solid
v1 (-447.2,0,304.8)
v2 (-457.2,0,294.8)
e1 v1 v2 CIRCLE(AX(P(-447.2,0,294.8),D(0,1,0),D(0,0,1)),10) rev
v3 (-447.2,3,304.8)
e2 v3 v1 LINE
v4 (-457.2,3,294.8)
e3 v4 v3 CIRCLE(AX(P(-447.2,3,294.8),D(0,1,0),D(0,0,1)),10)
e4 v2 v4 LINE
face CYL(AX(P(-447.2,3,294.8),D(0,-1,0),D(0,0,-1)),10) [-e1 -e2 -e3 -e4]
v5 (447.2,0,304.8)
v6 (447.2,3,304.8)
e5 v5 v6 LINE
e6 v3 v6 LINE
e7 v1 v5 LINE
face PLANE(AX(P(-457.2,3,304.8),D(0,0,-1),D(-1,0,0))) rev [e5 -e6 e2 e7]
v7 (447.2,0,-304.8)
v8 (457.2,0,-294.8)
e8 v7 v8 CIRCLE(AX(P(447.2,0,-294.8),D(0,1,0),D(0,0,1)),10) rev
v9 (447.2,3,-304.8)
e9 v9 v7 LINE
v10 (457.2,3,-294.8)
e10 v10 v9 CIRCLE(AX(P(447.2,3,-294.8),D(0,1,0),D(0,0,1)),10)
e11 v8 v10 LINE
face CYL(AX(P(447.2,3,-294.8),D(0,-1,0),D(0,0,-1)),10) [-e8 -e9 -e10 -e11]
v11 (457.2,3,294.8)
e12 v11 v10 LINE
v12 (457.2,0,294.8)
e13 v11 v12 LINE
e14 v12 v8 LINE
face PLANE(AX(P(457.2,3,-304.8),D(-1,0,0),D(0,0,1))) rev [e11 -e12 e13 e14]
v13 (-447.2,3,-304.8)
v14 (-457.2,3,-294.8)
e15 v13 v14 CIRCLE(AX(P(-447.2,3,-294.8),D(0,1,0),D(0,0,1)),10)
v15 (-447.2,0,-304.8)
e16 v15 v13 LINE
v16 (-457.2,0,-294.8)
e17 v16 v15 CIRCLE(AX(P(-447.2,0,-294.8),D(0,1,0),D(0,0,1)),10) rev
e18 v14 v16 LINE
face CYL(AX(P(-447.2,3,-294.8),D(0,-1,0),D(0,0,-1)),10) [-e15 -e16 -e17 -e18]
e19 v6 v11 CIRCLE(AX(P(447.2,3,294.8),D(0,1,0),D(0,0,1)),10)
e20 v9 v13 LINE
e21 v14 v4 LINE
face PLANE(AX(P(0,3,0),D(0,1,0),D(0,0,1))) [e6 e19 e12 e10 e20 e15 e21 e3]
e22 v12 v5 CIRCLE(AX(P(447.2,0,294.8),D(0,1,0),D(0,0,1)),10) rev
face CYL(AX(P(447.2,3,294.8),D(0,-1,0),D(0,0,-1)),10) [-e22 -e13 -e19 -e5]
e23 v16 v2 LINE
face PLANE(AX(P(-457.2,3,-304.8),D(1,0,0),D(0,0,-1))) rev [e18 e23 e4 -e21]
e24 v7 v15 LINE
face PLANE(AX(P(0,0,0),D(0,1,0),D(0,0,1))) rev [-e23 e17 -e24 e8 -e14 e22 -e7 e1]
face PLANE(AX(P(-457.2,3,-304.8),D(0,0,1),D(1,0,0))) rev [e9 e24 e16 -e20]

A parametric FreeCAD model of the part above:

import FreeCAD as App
import Part
import Sketcher
from FreeCAD import Vector


def edges_at(feature, points):
    """Names of the edges that pass closest to the given points."""
    edges = feature.Shape.Edges
    near = lambda p: min(range(len(edges)), key=lambda i: edges[i].distToShape(Part.Vertex(*p))[0])
    return sorted({f"Edge{near(p) + 1}" for p in points})

doc = App.newDocument("Part")
body = doc.addObject("PartDesign::Body", "Body")

# Sketch on XZ plane
sketch1 = doc.addObject("Sketcher::SketchObject", "Sketch")
body.addObject(sketch1)
sketch1.AttachmentSupport = (doc.XZ_Plane, [""])
sketch1.MapMode = "FlatFace"
sketch1.addGeometry([
    Part.LineSegment(Vector(-457, -305, 0), Vector(-457, 305, 0)),
    Part.LineSegment(Vector(-457, 305, 0), Vector(457, 305, 0)),
    Part.LineSegment(Vector(457, 305, 0), Vector(457, -305, 0)),
    Part.LineSegment(Vector(457, -305, 0), Vector(-457, -305, 0)),
], False)
sketch1.addConstraint([
    Sketcher.Constraint("Coincident", 0, 2, 1, 1),
    Sketcher.Constraint("Coincident", 1, 2, 2, 1),
    Sketcher.Constraint("Coincident", 2, 2, 3, 1),
    Sketcher.Constraint("Coincident", 3, 2, 0, 1),
    Sketcher.Constraint("Vertical", 0),
    Sketcher.Constraint("Horizontal", 1),
    Sketcher.Constraint("Vertical", 2),
    Sketcher.Constraint("Horizontal", 3),
    Sketcher.Constraint("Symmetric", 0, 2, 2, 2, -1, 1),
    Sketcher.Constraint("DistanceX", 1, 1, 1, 2, 914.4),
    Sketcher.Constraint("DistanceY", 0, 1, 0, 2, 609.6),
])
pad1 = doc.addObject("PartDesign::Pad", "Pad")
body.addObject(pad1)
pad1.Profile = sketch1
pad1.Length = 3
pad1.Reversed = True
doc.recompute()

fillet = doc.addObject("PartDesign::Fillet", "Fillet")
body.addObject(fillet)
fillet.Base = (pad1, edges_at(pad1, [
    (457.2, 1.5, 304.8),
    (-457.2, 1.5, 304.8),
    (-457.2, 1.5, -304.8),
    (457.2, 1.5, -304.8),
]))
fillet.Radius = 10

doc.recompute()
